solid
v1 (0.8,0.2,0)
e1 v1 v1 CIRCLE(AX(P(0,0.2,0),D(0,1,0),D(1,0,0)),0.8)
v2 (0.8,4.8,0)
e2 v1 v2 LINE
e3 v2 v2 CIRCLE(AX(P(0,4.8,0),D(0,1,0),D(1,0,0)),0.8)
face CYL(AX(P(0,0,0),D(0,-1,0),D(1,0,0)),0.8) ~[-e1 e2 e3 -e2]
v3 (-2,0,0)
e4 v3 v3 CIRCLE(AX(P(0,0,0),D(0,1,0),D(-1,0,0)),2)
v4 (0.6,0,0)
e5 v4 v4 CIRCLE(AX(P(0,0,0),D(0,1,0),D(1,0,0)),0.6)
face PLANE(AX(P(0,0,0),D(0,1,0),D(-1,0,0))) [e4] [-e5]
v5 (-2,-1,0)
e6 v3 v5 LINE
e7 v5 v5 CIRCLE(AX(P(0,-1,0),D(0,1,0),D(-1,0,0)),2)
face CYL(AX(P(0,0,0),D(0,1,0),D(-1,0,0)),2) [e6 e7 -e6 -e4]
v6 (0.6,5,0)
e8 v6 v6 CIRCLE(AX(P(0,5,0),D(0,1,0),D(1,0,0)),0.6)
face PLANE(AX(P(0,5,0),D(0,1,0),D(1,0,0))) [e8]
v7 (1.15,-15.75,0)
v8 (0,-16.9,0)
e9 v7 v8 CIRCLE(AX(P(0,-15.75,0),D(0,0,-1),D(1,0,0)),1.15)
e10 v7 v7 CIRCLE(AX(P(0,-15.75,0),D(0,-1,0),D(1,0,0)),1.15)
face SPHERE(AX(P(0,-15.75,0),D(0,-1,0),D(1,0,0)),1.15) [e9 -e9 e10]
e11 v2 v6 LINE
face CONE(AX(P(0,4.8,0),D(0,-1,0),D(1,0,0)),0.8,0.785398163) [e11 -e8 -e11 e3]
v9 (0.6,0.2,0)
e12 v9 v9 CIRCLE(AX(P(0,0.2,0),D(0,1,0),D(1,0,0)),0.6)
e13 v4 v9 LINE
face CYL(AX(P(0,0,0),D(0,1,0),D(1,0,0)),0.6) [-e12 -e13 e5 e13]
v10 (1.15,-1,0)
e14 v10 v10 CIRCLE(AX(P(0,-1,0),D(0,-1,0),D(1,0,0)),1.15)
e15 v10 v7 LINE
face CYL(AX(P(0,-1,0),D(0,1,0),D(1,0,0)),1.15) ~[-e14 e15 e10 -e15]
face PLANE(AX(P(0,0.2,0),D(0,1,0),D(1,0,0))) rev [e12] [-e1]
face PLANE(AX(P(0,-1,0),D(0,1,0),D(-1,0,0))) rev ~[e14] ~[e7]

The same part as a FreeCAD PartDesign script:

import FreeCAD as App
import Part
import Sketcher

V = App.Vector
Q = App.Units.Quantity


def edges_at(feature, points):
    """Names of the edges that pass closest to the given points."""
    edges = feature.Shape.Edges
    near = lambda p: min(range(len(edges)), key=lambda i: edges[i].distToShape(Part.Vertex(*p))[0])
    return sorted({f"Edge{near(p) + 1}" for p in points})


def add_polygon(sketch, points):
    """Adds a closed chain of lines whose ends are joined by coincident constraints."""
    first, n = sketch.GeometryCount, len(points)
    for a, b in zip(points, points[1:] + points[:1]):
        sketch.addGeometry(Part.LineSegment(App.Vector(*a, 0), App.Vector(*b, 0)), False)
    for i in range(n):
        sketch.addConstraint(Sketcher.Constraint("Coincident", first + i, 2, first + (i + 1) % n, 1))

doc = App.newDocument("Part")
body = doc.addObject("PartDesign::Body", "Body")

# Sketch on XZ plane
sketch1 = body.newObject("Sketcher::SketchObject", "Sketch")
sketch1.AttachmentSupport = (doc.getObject("XZ_Plane"), [""])
sketch1.MapMode = "FlatFace"
sketch1.addGeometry(Part.Circle(V(0, 0, 0), V(0, 0, 1), 2), False)
sketch1.addConstraint(Sketcher.Constraint("Coincident", 0, 3, -1, 1))
sketch1.addConstraint(Sketcher.Constraint("Diameter", 0, Q("4 mm")))
pad1 = body.newObject("PartDesign::Pad", "Pad")
pad1.Profile = sketch1
pad1.Length = 1

# Sketch on XZ plane
sketch2 = body.newObject("Sketcher::SketchObject", "Sketch001")
sketch2.AttachmentSupport = (doc.getObject("XZ_Plane"), [""])
sketch2.MapMode = "FlatFace"
sketch2.addGeometry(Part.Circle(V(0, 0, 0), V(0, 0, 1), 0.8), False)
sketch2.addConstraint(Sketcher.Constraint("Coincident", 0, 3, -1, 1))
sketch2.addConstraint(Sketcher.Constraint("Diameter", 0, Q("1.6 mm")))
pad2 = body.newObject("PartDesign::Pad", "Pad001")
pad2.Profile = sketch2
pad2.Length = 5
pad2.Reversed = True

# Sketch on XZ plane
sketch3 = body.newObject("Sketcher::SketchObject", "Sketch002")
sketch3.AttachmentSupport = (doc.getObject("XZ_Plane"), [""])
sketch3.MapMode = "FlatFace"
sketch3.AttachmentOffset = App.Placement(V(0, 0, 1), App.Rotation())
sketch3.addGeometry(Part.Circle(V(0, 0, 0), V(0, 0, 1), 1.1), False)
sketch3.addConstraint(Sketcher.Constraint("Coincident", 0, 3, -1, 1))
sketch3.addConstraint(Sketcher.Constraint("Diameter", 0, Q("2.3 mm")))
pad3 = body.newObject("PartDesign::Pad", "Pad002")
pad3.Profile = sketch3
pad3.Length = 15.9
doc.recompute()

fillet = body.newObject("PartDesign::Fillet", "Fillet")
fillet.Base = (pad3, edges_at(pad3, [(-1.15, -16.9, 0)]))
fillet.Radius = 1.15

# Sketch on XY plane
sketch4 = body.newObject("Sketcher::SketchObject", "Sketch003")
sketch4.AttachmentSupport = (doc.getObject("XY_Plane"), [""])
sketch4.MapMode = "FlatFace"
add_polygon(sketch4, [(0.6, 0), (0.8, 0), (0.8, 0.2), (0.6, 0.2)])  # lines 0-3
sketch4.addConstraint(Sketcher.Constraint("Horizontal", 0))
sketch4.addConstraint(Sketcher.Constraint("Vertical", 1))
sketch4.addConstraint(Sketcher.Constraint("Horizontal", 2))
sketch4.addConstraint(Sketcher.Constraint("Vertical", 3))
sketch4.addConstraint(Sketcher.Constraint("PointOnObject", 0, 2, -1))
sketch4.addConstraint(Sketcher.Constraint("Equal", 2, 1))
sketch4.addConstraint(Sketcher.Constraint("DistanceX", 0, 1, 0, 2, Q("0.2 mm")))
sketch4.addConstraint(Sketcher.Constraint("DistanceX", -1, 1, 0, 2, Q("0.8 mm")))
groove = body.newObject("PartDesign::Groove", "Groove")
groove.Profile = sketch4
groove.ReferenceAxis = (sketch4, ["V_Axis"])
groove.Angle = 360
doc.recompute()

chamfer = body.newObject("PartDesign::Chamfer", "Chamfer")
chamfer.Base = (groove, edges_at(groove, [(-0.8, 5, 0)]))
chamfer.Size = 0.2

doc.recompute()
